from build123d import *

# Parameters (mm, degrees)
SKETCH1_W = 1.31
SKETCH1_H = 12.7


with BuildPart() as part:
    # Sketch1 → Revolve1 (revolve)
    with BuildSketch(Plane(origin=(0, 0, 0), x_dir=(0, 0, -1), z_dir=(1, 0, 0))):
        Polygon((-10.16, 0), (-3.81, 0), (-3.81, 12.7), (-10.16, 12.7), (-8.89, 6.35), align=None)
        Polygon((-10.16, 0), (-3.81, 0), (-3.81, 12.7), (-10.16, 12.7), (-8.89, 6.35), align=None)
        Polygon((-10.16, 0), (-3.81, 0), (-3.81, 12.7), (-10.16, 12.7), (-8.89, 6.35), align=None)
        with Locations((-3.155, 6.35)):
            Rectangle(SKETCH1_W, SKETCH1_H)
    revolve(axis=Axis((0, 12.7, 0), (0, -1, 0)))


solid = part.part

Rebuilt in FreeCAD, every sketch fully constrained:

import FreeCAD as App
import Part
import Sketcher
Q = App.Units.Quantity

doc = App.newDocument("Part")
body = doc.addObject("PartDesign::Body", "Body")

sketch1 = body.newObject("Sketcher::SketchObject", "Sketch")
sketch1.AttachmentSupport = (doc.getObject("YZ_Plane"), [""])
sketch1.MapMode = "FlatFace"
sketch1.addGeometry(Part.LineSegment(App.Vector(0, 10, 0), App.Vector(0, 2, 0)), False)
sketch1.addGeometry(Part.LineSegment(App.Vector(0, 2, 0), App.Vector(13, 2, 0)), False)
sketch1.addGeometry(Part.LineSegment(App.Vector(13, 2, 0), App.Vector(13, 10, 0)), False)
sketch1.addGeometry(Part.LineSegment(App.Vector(13, 10, 0), App.Vector(6, 9, 0)), False)
sketch1.addGeometry(Part.LineSegment(App.Vector(6, 9, 0), App.Vector(0, 10, 0)), False)
sketch1.addConstraint(Sketcher.Constraint("Coincident", 0, 2, 1, 1))
sketch1.addConstraint(Sketcher.Constraint("Coincident", 1, 2, 2, 1))
sketch1.addConstraint(Sketcher.Constraint("Coincident", 2, 2, 3, 1))
sketch1.addConstraint(Sketcher.Constraint("Coincident", 3, 2, 4, 1))
sketch1.addConstraint(Sketcher.Constraint("Coincident", 4, 2, 0, 1))
sketch1.addConstraint(Sketcher.Constraint("Vertical", 0))
sketch1.addConstraint(Sketcher.Constraint("Horizontal", 1))
sketch1.addConstraint(Sketcher.Constraint("Vertical", 2))
sketch1.addConstraint(Sketcher.Constraint("PointOnObject", 0, 2, -2))
sketch1.addConstraint(Sketcher.Constraint("Horizontal", 2, 2, 4, 2))
sketch1.addConstraint(Sketcher.Constraint("Equal", 3, 4))
sketch1.addConstraint(Sketcher.Constraint("DistanceX", 1, 1, 1, 2, Q("0.5 in")))
sketch1.addConstraint(Sketcher.Constraint("DistanceY", -1, 1, 2, 2, Q("0.4 in")))
sketch1.addConstraint(Sketcher.Constraint("DistanceY", -1, 1, 3, 2, Q("0.35 in")))
sketch1.addConstraint(Sketcher.Constraint("DistanceY", 0, 2, 0, 1, Q("7.66 mm")))
revolution = body.newObject("PartDesign::Revolution", "Revolution")
revolution.Profile = sketch1
revolution.ReferenceAxis = (sketch1, ["H_Axis"])
revolution.Angle = 360

doc.recompute()
